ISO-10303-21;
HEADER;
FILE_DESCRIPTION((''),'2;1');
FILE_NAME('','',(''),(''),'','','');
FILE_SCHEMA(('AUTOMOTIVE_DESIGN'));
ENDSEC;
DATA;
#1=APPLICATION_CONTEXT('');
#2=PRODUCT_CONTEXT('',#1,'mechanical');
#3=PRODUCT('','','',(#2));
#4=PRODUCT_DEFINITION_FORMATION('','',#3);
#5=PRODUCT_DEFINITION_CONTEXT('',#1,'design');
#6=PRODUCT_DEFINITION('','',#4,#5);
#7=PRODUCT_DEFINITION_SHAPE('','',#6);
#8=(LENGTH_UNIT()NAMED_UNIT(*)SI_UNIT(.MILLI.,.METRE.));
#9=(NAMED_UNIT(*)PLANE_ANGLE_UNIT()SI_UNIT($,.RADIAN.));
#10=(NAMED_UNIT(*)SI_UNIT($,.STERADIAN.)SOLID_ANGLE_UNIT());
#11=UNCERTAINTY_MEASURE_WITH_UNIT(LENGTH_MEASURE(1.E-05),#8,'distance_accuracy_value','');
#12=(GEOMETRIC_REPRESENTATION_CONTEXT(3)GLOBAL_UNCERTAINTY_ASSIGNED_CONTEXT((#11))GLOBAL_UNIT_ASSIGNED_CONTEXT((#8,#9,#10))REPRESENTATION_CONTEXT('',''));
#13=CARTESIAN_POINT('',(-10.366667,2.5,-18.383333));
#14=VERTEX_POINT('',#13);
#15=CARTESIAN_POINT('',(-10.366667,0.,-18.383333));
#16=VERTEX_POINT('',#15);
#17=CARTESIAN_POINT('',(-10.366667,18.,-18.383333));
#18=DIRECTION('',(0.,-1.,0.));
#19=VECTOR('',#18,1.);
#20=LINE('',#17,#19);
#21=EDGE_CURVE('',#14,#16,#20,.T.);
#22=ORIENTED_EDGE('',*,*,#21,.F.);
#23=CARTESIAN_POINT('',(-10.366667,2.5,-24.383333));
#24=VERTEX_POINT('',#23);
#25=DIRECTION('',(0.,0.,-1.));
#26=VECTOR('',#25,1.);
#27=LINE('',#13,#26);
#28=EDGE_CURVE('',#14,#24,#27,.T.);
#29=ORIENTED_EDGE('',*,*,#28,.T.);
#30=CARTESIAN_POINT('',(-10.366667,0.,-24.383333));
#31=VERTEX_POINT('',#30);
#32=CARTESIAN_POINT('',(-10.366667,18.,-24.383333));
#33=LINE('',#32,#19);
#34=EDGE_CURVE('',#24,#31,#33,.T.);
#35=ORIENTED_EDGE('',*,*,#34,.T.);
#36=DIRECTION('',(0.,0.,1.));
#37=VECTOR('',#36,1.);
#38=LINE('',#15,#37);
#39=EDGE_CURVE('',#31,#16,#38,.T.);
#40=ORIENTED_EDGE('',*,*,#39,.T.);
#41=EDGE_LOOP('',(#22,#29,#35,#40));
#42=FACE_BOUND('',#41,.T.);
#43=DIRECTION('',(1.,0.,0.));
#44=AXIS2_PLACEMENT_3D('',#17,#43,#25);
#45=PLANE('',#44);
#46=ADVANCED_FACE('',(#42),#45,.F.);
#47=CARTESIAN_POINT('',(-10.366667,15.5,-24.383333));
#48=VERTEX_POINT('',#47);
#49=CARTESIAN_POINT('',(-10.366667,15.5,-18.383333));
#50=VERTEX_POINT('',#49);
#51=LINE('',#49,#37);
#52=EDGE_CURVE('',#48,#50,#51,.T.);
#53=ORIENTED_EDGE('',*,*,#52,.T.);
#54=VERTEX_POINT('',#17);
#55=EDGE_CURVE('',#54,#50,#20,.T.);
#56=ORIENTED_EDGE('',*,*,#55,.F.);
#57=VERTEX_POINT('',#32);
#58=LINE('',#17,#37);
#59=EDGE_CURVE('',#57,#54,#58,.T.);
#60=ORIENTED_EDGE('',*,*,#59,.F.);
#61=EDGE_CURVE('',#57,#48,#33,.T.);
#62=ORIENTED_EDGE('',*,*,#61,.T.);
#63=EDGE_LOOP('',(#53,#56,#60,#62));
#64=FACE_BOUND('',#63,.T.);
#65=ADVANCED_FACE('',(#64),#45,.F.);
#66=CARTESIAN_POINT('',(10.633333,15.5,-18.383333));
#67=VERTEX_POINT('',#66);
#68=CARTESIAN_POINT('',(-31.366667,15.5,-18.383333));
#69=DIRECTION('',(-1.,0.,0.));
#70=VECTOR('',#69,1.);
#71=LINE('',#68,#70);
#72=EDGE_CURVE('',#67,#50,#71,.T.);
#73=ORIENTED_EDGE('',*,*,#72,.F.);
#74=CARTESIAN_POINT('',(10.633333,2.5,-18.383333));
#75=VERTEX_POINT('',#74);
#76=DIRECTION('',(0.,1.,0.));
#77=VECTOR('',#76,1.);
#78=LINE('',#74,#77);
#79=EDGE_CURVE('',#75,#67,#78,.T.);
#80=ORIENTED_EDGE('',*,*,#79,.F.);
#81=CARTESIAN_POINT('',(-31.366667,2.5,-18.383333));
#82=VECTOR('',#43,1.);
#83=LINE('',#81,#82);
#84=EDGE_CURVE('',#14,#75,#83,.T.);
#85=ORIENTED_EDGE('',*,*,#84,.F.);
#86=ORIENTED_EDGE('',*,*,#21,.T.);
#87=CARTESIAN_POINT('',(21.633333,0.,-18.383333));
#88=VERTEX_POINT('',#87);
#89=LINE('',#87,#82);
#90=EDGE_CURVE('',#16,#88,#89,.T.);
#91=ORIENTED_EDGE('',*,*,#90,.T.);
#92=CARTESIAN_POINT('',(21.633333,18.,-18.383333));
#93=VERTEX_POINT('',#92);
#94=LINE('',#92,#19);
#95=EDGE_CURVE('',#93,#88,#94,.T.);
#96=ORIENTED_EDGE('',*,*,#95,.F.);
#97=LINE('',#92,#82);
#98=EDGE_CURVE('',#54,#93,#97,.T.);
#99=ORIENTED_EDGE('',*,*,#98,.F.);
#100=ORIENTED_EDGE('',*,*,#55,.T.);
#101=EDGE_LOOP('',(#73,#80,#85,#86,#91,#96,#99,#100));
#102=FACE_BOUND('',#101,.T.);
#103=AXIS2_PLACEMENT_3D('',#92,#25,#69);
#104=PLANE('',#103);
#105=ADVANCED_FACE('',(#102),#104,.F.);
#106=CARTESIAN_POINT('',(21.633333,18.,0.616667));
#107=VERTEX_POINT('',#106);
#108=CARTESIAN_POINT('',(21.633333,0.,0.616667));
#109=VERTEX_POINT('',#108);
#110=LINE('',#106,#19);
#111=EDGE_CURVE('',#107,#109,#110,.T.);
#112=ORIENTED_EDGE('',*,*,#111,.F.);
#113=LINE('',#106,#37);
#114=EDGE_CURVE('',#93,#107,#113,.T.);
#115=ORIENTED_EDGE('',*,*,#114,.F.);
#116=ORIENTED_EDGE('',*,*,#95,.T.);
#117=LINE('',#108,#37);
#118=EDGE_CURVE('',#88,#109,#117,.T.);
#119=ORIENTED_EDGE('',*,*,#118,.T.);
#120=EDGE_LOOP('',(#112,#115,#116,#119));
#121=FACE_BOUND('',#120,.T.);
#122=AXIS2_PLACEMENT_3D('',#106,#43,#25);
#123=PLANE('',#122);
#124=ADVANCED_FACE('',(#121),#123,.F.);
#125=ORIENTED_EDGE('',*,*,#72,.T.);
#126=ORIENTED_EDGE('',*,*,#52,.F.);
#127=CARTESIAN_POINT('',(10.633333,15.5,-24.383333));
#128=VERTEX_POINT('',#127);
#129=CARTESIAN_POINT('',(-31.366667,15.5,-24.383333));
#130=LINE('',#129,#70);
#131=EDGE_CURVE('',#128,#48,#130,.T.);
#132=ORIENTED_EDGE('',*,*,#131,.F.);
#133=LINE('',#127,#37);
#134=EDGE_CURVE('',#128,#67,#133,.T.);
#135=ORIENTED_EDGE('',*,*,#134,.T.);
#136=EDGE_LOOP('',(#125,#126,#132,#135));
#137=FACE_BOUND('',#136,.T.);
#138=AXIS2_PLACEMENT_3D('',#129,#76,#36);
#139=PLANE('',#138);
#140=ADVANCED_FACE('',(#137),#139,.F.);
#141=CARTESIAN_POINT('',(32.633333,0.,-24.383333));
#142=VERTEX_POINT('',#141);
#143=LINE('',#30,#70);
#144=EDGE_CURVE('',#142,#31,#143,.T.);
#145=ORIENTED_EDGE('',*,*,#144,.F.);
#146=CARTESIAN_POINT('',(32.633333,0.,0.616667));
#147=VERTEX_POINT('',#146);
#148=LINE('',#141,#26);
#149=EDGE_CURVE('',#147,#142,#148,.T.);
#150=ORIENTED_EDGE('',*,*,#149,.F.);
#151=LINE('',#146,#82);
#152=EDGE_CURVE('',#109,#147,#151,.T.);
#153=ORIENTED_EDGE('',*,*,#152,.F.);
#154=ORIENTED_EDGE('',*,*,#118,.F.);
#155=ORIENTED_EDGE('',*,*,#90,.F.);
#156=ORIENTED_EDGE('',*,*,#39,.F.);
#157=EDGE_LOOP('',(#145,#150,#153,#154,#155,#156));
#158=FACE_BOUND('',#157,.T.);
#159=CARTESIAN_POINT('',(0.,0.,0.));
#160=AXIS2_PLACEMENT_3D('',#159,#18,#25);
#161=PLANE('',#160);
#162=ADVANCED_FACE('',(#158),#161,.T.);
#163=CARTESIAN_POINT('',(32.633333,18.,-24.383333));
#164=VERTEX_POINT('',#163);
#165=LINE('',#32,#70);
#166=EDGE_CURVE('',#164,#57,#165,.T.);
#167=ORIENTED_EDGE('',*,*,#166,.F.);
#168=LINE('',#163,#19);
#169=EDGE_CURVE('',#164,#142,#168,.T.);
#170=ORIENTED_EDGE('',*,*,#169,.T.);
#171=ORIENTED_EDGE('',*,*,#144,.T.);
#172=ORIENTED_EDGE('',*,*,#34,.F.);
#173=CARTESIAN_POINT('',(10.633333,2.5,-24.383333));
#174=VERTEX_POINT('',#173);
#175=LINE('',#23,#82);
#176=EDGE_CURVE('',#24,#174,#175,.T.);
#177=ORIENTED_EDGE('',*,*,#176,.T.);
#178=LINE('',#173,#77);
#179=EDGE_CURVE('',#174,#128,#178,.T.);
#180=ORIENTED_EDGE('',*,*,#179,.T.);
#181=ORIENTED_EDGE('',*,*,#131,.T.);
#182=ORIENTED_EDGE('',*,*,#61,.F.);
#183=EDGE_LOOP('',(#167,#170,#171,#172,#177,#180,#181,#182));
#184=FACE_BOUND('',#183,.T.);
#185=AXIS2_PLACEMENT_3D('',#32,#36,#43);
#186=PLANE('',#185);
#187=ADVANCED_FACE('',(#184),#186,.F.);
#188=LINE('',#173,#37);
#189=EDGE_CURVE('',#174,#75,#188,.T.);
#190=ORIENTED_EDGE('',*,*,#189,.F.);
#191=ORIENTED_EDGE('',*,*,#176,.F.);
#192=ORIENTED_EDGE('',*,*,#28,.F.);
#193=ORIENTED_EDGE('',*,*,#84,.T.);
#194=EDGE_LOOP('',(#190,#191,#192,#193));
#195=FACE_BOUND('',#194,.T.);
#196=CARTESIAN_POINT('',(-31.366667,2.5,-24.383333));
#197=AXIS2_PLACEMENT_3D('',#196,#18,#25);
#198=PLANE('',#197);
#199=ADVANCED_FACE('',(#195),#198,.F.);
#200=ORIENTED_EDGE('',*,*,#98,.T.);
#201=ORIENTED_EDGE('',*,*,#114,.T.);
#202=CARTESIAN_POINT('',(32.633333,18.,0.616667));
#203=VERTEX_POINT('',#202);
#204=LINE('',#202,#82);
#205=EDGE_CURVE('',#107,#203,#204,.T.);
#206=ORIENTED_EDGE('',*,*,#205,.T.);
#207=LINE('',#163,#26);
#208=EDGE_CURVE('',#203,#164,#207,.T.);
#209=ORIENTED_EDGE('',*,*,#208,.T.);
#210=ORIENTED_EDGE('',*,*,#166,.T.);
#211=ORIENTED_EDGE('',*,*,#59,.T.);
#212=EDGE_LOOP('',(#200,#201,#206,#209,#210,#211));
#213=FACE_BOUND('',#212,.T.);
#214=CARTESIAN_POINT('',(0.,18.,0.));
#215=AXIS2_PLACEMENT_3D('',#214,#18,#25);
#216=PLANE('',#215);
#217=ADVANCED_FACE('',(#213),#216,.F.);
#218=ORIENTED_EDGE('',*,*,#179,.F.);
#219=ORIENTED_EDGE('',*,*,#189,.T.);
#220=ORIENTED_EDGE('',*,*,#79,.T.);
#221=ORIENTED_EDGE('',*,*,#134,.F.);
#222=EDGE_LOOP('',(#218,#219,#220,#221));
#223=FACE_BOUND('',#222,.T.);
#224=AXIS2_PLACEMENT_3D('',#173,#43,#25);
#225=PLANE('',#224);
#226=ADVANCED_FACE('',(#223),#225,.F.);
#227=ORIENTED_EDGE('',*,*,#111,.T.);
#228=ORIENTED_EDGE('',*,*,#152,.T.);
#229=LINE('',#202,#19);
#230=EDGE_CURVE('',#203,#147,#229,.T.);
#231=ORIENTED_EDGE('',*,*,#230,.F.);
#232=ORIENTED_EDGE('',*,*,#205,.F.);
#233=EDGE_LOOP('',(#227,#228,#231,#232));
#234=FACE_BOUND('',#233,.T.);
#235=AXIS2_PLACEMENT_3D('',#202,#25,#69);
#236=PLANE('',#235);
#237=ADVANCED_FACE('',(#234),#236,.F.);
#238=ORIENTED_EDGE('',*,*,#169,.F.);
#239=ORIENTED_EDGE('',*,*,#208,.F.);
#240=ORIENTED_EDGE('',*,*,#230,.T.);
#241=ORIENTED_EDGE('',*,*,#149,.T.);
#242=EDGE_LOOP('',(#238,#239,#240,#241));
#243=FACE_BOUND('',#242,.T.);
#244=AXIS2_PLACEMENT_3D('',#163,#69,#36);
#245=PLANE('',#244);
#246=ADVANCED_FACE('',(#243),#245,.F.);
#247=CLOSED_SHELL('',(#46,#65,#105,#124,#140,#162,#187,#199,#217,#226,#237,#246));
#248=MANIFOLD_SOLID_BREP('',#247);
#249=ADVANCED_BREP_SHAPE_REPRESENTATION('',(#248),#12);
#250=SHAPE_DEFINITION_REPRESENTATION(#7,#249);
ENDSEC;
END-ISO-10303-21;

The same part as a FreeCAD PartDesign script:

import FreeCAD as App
import Part
import Sketcher
Q = App.Units.Quantity

doc = App.newDocument("Part")
body = doc.addObject("PartDesign::Body", "Body")

sketch1 = doc.addObject("Sketcher::SketchObject", "Sketch")
body.addObject(sketch1)
sketch1.AttachmentSupport = (doc.XZ_Plane, [""])
sketch1.MapMode = "FlatFace"
sketch1.addGeometry(Part.LineSegment(App.Vector(33, -24, 0), App.Vector(-10, -24, 0)), False)
sketch1.addGeometry(Part.LineSegment(App.Vector(-10, -24, 0), App.Vector(-10, -18, 0)), False)
sketch1.addGeometry(Part.LineSegment(App.Vector(-10, -18, 0), App.Vector(22, -18, 0)), False)
sketch1.addGeometry(Part.LineSegment(App.Vector(22, -18, 0), App.Vector(22, 1, 0)), False)
sketch1.addGeometry(Part.LineSegment(App.Vector(22, 1, 0), App.Vector(33, 1, 0)), False)
sketch1.addGeometry(Part.LineSegment(App.Vector(33, 1, 0), App.Vector(33, -24, 0)), False)
sketch1.addConstraint(Sketcher.Constraint("Coincident", 0, 2, 1, 1))
sketch1.addConstraint(Sketcher.Constraint("Coincident", 1, 2, 2, 1))
sketch1.addConstraint(Sketcher.Constraint("Coincident", 2, 2, 3, 1))
sketch1.addConstraint(Sketcher.Constraint("Coincident", 3, 2, 4, 1))
sketch1.addConstraint(Sketcher.Constraint("Coincident", 4, 2, 5, 1))
sketch1.addConstraint(Sketcher.Constraint("Coincident", 5, 2, 0, 1))
sketch1.addConstraint(Sketcher.Constraint("Horizontal", 0))
sketch1.addConstraint(Sketcher.Constraint("Vertical", 1))
sketch1.addConstraint(Sketcher.Constraint("Horizontal", 2))
sketch1.addConstraint(Sketcher.Constraint("Vertical", 3))
sketch1.addConstraint(Sketcher.Constraint("Horizontal", 4))
sketch1.addConstraint(Sketcher.Constraint("Vertical", 5))
sketch1.addConstraint(Sketcher.Constraint("DistanceX", 0, 2, 0, 1, Q("43 mm")))
sketch1.addConstraint(Sketcher.Constraint("DistanceX", 2, 1, 2, 2, Q("32 mm")))
sketch1.addConstraint(Sketcher.Constraint("DistanceY", 1, 1, 1, 2, Q("6 mm")))
sketch1.addConstraint(Sketcher.Constraint("DistanceY", 3, 1, 3, 2, Q("19 mm")))
sketch1.addConstraint(Sketcher.Constraint("DistanceX", 0, 2, -1, 1, Q("10.366667 mm")))
sketch1.addConstraint(Sketcher.Constraint("DistanceY", 0, 2, -1, 1, Q("24.383333 mm")))
pad1 = doc.addObject("PartDesign::Pad", "Pad")
body.addObject(pad1)
pad1.Profile = sketch1
pad1.Length = 18
pad1.Reversed = True

sketch2 = doc.addObject("Sketcher::SketchObject", "Sketch001")
body.addObject(sketch2)
sketch2.AttachmentSupport = (doc.XY_Plane, [""])
sketch2.MapMode = "FlatFace"
sketch2.AttachmentOffset = App.Placement(App.Vector(0, 0, -18.383333), App.Rotation())
sketch2.addGeometry(Part.LineSegment(App.Vector(-31, 16, 0), App.Vector(-31, 2, 0)), False)
sketch2.addGeometry(Part.LineSegment(App.Vector(-31, 2, 0), App.Vector(11, 2, 0)), False)
sketch2.addGeometry(Part.LineSegment(App.Vector(11, 2, 0), App.Vector(11, 16, 0)), False)
sketch2.addGeometry(Part.LineSegment(App.Vector(11, 16, 0), App.Vector(-31, 16, 0)), False)
sketch2.addConstraint(Sketcher.Constraint("Coincident", 0, 2, 1, 1))
sketch2.addConstraint(Sketcher.Constraint("Coincident", 1, 2, 2, 1))
sketch2.addConstraint(Sketcher.Constraint("Coincident", 2, 2, 3, 1))
sketch2.addConstraint(Sketcher.Constraint("Coincident", 3, 2, 0, 1))
sketch2.addConstraint(Sketcher.Constraint("Vertical", 0))
sketch2.addConstraint(Sketcher.Constraint("Horizontal", 1))
sketch2.addConstraint(Sketcher.Constraint("Vertical", 2))
sketch2.addConstraint(Sketcher.Constraint("Horizontal", 3))
sketch2.addConstraint(Sketcher.Constraint("DistanceX", 1, 1, 1, 2, Q("42 mm")))
sketch2.addConstraint(Sketcher.Constraint("DistanceY", 0, 2, 0, 1, Q("13 mm")))
sketch2.addConstraint(Sketcher.Constraint("DistanceY", -1, 1, 0, 2, Q("2.5 mm")))
sketch2.addConstraint(Sketcher.Constraint("DistanceX", 0, 2, -1, 1, Q("31.366667 mm")))
pocket1 = doc.addObject("PartDesign::Pocket", "Pocket")
body.addObject(pocket1)
pocket1.Profile = sketch2
pocket1.Type = "ThroughAll"

doc.recompute()
